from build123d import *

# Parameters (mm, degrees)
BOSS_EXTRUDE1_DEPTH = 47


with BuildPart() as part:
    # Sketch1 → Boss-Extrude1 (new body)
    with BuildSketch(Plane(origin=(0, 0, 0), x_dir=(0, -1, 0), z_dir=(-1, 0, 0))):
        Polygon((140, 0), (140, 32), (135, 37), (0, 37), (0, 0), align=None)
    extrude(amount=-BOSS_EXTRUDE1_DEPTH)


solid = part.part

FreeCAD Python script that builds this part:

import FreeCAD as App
import Part
import Sketcher

V = App.Vector
Q = App.Units.Quantity


def add_polygon(sketch, points):
    """Adds a closed chain of lines whose ends are joined by coincident constraints."""
    first, n = sketch.GeometryCount, len(points)
    for a, b in zip(points, points[1:] + points[:1]):
        sketch.addGeometry(Part.LineSegment(App.Vector(*a, 0), App.Vector(*b, 0)), False)
    for i in range(n):
        sketch.addConstraint(Sketcher.Constraint("Coincident", first + i, 2, first + (i + 1) % n, 1))

doc = App.newDocument("Part")
body = doc.addObject("PartDesign::Body", "Body")

# Sketch on YZ plane
sketch1 = body.newObject("Sketcher::SketchObject", "Sketch")
sketch1.AttachmentSupport = (doc.getObject("YZ_Plane"), [""])
sketch1.MapMode = "FlatFace"
add_polygon(sketch1, [(-140, 0), (-140, 32), (-135, 37), (0, 37), (0, 0)])  # lines 0-4
sketch1.addConstraint([
    Sketcher.Constraint("Vertical", 0),
    Sketcher.Constraint("Horizontal", 2),
    Sketcher.Constraint("Vertical", 3),
    Sketcher.Constraint("Horizontal", 4),
    Sketcher.Constraint("Coincident", 3, 2, -1, 1),
    Sketcher.Constraint("DistanceX", 2, 1, 2, 2, Q("135 mm")),
    Sketcher.Constraint("DistanceX", 4, 2, 4, 1, Q("140 mm")),
    Sketcher.Constraint("DistanceY", 0, 1, 0, 2, Q("32 mm")),
    Sketcher.Constraint("DistanceY", 3, 2, 3, 1, Q("37 mm")),
])
pad1 = body.newObject("PartDesign::Pad", "Pad")
pad1.Profile = sketch1
pad1.Length = 47

doc.recompute()
